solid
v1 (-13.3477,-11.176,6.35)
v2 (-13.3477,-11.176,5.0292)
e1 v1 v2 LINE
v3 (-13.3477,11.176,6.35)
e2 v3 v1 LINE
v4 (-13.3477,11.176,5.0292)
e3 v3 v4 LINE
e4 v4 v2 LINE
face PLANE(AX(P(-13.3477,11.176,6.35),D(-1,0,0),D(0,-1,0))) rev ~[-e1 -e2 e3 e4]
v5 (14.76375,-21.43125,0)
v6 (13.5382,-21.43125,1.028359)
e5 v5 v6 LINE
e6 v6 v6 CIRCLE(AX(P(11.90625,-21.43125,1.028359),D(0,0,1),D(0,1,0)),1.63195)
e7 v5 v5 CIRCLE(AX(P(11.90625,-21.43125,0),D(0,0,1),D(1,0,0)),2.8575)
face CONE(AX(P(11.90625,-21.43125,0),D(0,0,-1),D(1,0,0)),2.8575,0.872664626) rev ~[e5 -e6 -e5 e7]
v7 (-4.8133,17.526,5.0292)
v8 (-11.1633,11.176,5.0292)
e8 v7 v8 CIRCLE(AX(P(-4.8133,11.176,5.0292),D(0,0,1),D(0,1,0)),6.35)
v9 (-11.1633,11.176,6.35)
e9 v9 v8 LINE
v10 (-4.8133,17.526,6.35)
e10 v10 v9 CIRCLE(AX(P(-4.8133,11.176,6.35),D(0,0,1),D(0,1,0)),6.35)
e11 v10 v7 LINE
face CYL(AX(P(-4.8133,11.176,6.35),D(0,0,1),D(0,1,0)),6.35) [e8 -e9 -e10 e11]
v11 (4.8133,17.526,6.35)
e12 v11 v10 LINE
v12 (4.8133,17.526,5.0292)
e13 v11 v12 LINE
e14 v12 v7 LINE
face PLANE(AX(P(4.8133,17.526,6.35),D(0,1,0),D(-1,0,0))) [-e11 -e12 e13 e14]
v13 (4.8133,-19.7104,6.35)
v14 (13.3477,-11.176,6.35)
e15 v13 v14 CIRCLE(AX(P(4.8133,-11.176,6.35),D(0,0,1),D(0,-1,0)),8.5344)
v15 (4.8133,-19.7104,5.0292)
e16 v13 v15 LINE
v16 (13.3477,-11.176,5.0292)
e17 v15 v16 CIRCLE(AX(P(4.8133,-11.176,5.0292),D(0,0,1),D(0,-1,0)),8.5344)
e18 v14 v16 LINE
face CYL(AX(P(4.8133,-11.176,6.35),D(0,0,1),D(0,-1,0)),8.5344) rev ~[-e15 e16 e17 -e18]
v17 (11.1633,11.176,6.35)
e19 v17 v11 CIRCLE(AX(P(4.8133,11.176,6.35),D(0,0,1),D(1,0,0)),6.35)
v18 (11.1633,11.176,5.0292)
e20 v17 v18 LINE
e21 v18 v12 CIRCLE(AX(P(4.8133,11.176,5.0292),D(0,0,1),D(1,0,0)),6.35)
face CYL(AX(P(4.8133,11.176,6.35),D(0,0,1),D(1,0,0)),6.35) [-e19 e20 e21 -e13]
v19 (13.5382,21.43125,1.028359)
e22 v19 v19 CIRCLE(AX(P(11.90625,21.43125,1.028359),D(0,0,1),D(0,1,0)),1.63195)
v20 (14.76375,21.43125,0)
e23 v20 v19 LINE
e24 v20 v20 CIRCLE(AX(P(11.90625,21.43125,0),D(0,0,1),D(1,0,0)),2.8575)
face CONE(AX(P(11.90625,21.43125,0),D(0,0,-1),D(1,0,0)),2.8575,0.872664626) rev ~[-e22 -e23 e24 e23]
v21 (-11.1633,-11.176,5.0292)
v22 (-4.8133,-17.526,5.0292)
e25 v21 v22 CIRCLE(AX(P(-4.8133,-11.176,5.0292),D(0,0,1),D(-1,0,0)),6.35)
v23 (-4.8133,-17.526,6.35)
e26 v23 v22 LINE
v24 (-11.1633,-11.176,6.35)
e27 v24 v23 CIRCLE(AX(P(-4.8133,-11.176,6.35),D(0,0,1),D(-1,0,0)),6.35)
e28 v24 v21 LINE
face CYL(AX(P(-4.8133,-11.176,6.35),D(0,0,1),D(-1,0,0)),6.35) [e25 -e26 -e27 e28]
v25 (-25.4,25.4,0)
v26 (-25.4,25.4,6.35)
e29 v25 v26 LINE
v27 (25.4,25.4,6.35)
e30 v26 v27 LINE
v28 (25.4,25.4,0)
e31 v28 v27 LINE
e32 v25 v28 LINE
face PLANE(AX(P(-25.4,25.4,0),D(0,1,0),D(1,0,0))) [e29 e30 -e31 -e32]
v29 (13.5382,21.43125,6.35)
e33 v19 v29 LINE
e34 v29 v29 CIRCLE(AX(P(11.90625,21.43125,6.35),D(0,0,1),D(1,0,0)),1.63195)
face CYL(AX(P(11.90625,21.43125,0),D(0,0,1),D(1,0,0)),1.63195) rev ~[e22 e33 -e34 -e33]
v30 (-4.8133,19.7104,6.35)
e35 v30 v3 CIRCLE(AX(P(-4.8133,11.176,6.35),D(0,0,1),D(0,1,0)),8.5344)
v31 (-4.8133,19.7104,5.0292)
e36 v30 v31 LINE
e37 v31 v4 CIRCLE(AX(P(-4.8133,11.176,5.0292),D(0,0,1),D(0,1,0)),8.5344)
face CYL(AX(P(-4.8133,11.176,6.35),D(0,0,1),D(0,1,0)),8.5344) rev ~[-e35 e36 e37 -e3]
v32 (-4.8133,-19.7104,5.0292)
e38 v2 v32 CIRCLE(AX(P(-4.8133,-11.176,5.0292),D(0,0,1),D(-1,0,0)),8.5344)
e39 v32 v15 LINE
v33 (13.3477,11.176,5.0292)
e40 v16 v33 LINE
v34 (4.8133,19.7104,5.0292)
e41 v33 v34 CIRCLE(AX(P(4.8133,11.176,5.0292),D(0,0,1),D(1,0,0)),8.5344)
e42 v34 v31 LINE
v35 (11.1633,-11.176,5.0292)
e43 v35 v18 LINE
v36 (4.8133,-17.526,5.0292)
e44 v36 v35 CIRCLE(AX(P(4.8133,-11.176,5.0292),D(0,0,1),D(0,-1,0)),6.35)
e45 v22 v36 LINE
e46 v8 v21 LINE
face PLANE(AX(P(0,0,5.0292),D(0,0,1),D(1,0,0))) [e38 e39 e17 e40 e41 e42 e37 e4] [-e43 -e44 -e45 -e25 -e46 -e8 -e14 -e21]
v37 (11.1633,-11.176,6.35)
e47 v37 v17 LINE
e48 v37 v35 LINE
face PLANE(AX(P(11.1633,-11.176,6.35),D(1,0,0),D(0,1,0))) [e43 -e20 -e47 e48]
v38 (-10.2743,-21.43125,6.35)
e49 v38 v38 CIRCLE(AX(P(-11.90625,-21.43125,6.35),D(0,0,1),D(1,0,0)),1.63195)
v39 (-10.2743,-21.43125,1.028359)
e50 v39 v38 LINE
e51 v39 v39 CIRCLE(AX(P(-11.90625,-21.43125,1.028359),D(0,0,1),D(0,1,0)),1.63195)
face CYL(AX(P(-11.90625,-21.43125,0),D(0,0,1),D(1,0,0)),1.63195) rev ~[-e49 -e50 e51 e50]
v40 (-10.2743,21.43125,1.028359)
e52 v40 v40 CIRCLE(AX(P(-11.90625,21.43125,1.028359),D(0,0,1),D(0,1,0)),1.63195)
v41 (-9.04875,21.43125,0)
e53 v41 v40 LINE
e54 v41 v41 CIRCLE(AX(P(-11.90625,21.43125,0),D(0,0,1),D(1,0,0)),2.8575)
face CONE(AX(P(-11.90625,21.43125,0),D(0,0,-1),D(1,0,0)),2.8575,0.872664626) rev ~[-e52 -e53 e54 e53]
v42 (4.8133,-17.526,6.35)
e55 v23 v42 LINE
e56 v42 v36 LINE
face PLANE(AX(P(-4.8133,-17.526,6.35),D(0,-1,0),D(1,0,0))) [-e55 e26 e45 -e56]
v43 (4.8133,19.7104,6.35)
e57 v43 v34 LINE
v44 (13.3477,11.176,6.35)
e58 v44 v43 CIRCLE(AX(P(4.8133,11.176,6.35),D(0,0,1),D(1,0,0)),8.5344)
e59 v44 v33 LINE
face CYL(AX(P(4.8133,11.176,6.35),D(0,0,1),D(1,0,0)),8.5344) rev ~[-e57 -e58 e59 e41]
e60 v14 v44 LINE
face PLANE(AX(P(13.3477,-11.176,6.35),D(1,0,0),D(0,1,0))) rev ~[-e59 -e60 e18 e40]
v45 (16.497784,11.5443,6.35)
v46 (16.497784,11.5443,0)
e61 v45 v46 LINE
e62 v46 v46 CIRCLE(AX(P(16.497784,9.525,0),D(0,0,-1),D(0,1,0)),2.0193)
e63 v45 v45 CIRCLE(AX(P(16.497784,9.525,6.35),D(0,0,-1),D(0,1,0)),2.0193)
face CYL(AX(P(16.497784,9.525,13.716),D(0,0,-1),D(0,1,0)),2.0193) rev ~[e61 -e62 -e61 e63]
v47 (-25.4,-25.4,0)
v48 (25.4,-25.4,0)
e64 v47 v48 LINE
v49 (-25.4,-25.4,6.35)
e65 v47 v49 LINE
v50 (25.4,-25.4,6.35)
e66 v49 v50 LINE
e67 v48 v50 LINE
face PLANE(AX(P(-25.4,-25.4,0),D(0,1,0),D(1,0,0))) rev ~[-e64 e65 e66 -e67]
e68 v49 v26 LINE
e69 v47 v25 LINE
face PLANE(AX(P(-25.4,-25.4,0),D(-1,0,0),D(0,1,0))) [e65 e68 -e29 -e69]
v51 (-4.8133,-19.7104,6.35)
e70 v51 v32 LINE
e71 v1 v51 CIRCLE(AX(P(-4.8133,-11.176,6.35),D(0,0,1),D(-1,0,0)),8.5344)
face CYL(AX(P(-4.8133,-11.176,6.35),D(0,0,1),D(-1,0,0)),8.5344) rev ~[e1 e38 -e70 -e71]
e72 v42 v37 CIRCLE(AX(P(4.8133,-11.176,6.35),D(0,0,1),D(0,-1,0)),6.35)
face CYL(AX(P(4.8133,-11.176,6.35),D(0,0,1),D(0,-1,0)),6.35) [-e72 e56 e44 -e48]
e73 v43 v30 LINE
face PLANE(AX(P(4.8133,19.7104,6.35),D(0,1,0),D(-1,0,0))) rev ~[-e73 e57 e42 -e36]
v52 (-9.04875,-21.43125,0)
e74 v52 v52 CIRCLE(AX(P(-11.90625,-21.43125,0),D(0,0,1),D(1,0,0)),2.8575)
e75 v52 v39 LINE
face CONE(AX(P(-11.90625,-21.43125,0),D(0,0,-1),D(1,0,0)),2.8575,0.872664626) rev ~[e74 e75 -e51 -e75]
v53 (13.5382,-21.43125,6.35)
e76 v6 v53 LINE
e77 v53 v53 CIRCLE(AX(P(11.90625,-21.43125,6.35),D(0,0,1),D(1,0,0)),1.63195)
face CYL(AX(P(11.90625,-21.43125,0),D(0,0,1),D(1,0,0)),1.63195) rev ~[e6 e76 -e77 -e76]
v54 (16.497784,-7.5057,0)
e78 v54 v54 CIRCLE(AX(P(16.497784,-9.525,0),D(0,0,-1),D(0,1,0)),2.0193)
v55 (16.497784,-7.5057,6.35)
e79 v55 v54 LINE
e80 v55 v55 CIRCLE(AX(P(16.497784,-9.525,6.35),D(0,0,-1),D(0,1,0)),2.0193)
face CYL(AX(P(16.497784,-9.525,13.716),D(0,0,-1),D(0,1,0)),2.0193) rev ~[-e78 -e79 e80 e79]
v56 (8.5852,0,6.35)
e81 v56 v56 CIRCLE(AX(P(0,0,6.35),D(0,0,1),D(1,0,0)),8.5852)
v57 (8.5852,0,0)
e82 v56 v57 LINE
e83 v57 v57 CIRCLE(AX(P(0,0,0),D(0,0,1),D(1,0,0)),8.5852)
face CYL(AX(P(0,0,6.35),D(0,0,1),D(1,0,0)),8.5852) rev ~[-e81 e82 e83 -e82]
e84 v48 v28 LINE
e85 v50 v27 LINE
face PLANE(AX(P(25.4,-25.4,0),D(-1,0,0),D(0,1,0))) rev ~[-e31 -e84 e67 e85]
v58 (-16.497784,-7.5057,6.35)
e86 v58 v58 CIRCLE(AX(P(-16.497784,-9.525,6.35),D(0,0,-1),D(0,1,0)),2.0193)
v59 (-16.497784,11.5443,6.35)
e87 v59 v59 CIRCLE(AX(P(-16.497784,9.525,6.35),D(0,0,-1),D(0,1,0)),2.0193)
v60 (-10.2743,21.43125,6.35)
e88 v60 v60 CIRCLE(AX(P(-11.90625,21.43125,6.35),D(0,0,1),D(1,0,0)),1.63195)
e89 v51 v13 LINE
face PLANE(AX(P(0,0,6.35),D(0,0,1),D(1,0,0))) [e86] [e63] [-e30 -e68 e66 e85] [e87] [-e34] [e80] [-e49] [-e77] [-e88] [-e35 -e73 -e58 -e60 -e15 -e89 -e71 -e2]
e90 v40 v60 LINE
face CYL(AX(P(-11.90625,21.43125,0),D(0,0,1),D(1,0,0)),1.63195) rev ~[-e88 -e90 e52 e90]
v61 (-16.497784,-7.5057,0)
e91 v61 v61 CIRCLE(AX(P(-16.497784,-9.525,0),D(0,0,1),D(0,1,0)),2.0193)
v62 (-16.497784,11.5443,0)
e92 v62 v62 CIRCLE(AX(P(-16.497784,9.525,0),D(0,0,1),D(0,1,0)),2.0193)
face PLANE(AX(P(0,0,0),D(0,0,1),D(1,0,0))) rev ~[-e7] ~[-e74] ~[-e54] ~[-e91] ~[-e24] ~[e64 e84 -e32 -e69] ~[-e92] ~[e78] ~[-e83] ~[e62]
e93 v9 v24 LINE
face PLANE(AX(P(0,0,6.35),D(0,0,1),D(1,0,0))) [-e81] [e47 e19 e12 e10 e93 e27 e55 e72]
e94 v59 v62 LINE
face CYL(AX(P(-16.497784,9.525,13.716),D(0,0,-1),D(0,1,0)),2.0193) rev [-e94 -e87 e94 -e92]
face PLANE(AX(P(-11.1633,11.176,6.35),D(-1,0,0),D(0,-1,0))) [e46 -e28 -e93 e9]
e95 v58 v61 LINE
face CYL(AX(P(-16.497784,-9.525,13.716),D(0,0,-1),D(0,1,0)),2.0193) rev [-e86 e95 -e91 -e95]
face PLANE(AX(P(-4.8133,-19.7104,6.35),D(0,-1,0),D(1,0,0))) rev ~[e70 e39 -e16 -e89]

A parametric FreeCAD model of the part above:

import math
import FreeCAD as App
import Part
import Sketcher

V = App.Vector
Q = App.Units.Quantity


def add_polygon(sketch, points):
    """Adds a closed chain of lines whose ends are joined by coincident constraints."""
    first, n = sketch.GeometryCount, len(points)
    for a, b in zip(points, points[1:] + points[:1]):
        sketch.addGeometry(Part.LineSegment(App.Vector(*a, 0), App.Vector(*b, 0)), False)
    for i in range(n):
        sketch.addConstraint(Sketcher.Constraint("Coincident", first + i, 2, first + (i + 1) % n, 1))

doc = App.newDocument("Part")
body = doc.addObject("PartDesign::Body", "Body")

# Sketch on XY plane
sketch1 = body.newObject("Sketcher::SketchObject", "Sketch")
sketch1.AttachmentSupport = (doc.getObject("XY_Plane"), [""])
sketch1.MapMode = "FlatFace"
add_polygon(sketch1, [(-25, 25), (-25, -25), (25, -25), (25, 25)])  # lines 0-3
sketch1.addConstraint(Sketcher.Constraint("Vertical", 0))
sketch1.addConstraint(Sketcher.Constraint("Horizontal", 1))
sketch1.addConstraint(Sketcher.Constraint("Vertical", 2))
sketch1.addConstraint(Sketcher.Constraint("Horizontal", 3))
sketch1.addConstraint(Sketcher.Constraint("Symmetric", 0, 2, 2, 2, -1, 1))
sketch1.addConstraint(Sketcher.Constraint("Equal", 3, 0))
sketch1.addConstraint(Sketcher.Constraint("DistanceX", 1, 1, 1, 2, Q("2 in")))
pad1 = body.newObject("PartDesign::Pad", "Pad")
pad1.Profile = sketch1
pad1.Length = Q("0.25 in")

# Sketch on XY plane
sketch2 = body.newObject("Sketcher::SketchObject", "Sketch001")
sketch2.AttachmentSupport = (doc.getObject("XY_Plane"), [""])
sketch2.MapMode = "FlatFace"
sketch2.AttachmentOffset = App.Placement(V(0, 0, 0.25 * 25.4), App.Rotation())
sketch2.addGeometry(Part.Circle(V(0, 0, 0), V(0, 0, 1), 9), False)
sketch2.addConstraint(Sketcher.Constraint("Coincident", 0, 3, -1, 1))
sketch2.addConstraint(Sketcher.Constraint("Diameter", 0, Q("0.676 in")))
pocket1 = body.newObject("PartDesign::Pocket", "Pocket")
pocket1.Profile = sketch2
pocket1.Type = "ThroughAll"

# Sketch on XY plane
sketch3 = body.newObject("Sketcher::SketchObject", "Sketch002")
sketch3.AttachmentSupport = (doc.getObject("XY_Plane"), [""])
sketch3.MapMode = "FlatFace"
sketch3.AttachmentOffset = App.Placement(V(0, 0, 0.25 * 25.4), App.Rotation())
sketch3.addGeometry(Part.LineSegment(V(13, -11, 0), V(13, 11, 0)), False)
sketch3.addGeometry(Part.ArcOfCircle(Part.Circle(V(5, 11, 0), V(0, 0, 1), 9), math.radians(0), math.radians(90)), False)
sketch3.addGeometry(Part.LineSegment(V(5, 20, 0), V(-5, 20, 0)), False)
sketch3.addGeometry(Part.ArcOfCircle(Part.Circle(V(-5, 11, 0), V(0, 0, 1), 9), math.radians(90), math.radians(180)), False)
sketch3.addGeometry(Part.LineSegment(V(-13, 11, 0), V(-13, -11, 0)), False)
sketch3.addGeometry(Part.ArcOfCircle(Part.Circle(V(-5, -11, 0), V(0, 0, 1), 9), math.radians(-180), math.radians(-90)), False)
sketch3.addGeometry(Part.LineSegment(V(-5, -20, 0), V(5, -20, 0)), False)
sketch3.addGeometry(Part.ArcOfCircle(Part.Circle(V(5, -11, 0), V(0, 0, 1), 9), math.radians(-90), math.radians(0)), False)
sketch3.addGeometry(Part.LineSegment(V(5, -18, 0), V(-5, -18, 0)), False)
sketch3.addGeometry(Part.ArcOfCircle(Part.Circle(V(-5, -11, 0), V(0, 0, 1), 6), math.radians(180), math.radians(270)), False)
sketch3.addGeometry(Part.LineSegment(V(-11, -11, 0), V(-11, 11, 0)), False)
sketch3.addGeometry(Part.ArcOfCircle(Part.Circle(V(-5, 11, 0), V(0, 0, 1), 6), math.radians(90), math.radians(180)), False)
sketch3.addGeometry(Part.LineSegment(V(-5, 18, 0), V(5, 18, 0)), False)
sketch3.addGeometry(Part.ArcOfCircle(Part.Circle(V(5, 11, 0), V(0, 0, 1), 6), math.radians(0), math.radians(90)), False)
sketch3.addGeometry(Part.LineSegment(V(11, 11, 0), V(11, -11, 0)), False)
sketch3.addGeometry(Part.ArcOfCircle(Part.Circle(V(5, -11, 0), V(0, 0, 1), 6), math.radians(-90), math.radians(0)), False)
sketch3.addConstraint(Sketcher.Constraint("Tangent", 0, 2, 1, 1))
sketch3.addConstraint(Sketcher.Constraint("Tangent", 1, 2, 2, 1))
sketch3.addConstraint(Sketcher.Constraint("Tangent", 2, 2, 3, 1))
sketch3.addConstraint(Sketcher.Constraint("Tangent", 3, 2, 4, 1))
sketch3.addConstraint(Sketcher.Constraint("Tangent", 4, 2, 5, 1))
sketch3.addConstraint(Sketcher.Constraint("Tangent", 5, 2, 6, 1))
sketch3.addConstraint(Sketcher.Constraint("Tangent", 6, 2, 7, 1))
sketch3.addConstraint(Sketcher.Constraint("Tangent", 7, 2, 0, 1))
sketch3.addConstraint(Sketcher.Constraint("Tangent", 8, 2, 9, 2))
sketch3.addConstraint(Sketcher.Constraint("Tangent", 9, 1, 10, 1))
sketch3.addConstraint(Sketcher.Constraint("Tangent", 10, 2, 11, 2))
sketch3.addConstraint(Sketcher.Constraint("Tangent", 11, 1, 12, 1))
sketch3.addConstraint(Sketcher.Constraint("Tangent", 12, 2, 13, 2))
sketch3.addConstraint(Sketcher.Constraint("Tangent", 13, 1, 14, 1))
sketch3.addConstraint(Sketcher.Constraint("Tangent", 14, 2, 15, 2))
sketch3.addConstraint(Sketcher.Constraint("Tangent", 15, 1, 8, 1))
sketch3.addConstraint(Sketcher.Constraint("Vertical", 0))
sketch3.addConstraint(Sketcher.Constraint("Horizontal", 2))
sketch3.addConstraint(Sketcher.Constraint("Vertical", 4))
sketch3.addConstraint(Sketcher.Constraint("Horizontal", 6))
sketch3.addConstraint(Sketcher.Constraint("Horizontal", 8))
sketch3.addConstraint(Sketcher.Constraint("Vertical", 10))
sketch3.addConstraint(Sketcher.Constraint("Horizontal", 12))
sketch3.addConstraint(Sketcher.Constraint("Vertical", 14))
sketch3.addConstraint(Sketcher.Constraint("Coincident", 9, 3, 5, 3))
sketch3.addConstraint(Sketcher.Constraint("Coincident", 11, 3, 3, 3))
sketch3.addConstraint(Sketcher.Constraint("Coincident", 13, 3, 1, 3))
sketch3.addConstraint(Sketcher.Constraint("Equal", 1, 3))
sketch3.addConstraint(Sketcher.Constraint("Equal", 3, 5))
sketch3.addConstraint(Sketcher.Constraint("Equal", 5, 7))
sketch3.addConstraint(Sketcher.Constraint("Equal", 13, 15))
sketch3.addConstraint(Sketcher.Constraint("Symmetric", 1, 3, 5, 3, -1, 1))
sketch3.addConstraint(Sketcher.Constraint("Radius", 9, Q("0.25 in")))
sketch3.addConstraint(Sketcher.Constraint("Radius", 1, Q("0.336 in")))
sketch3.addConstraint(Sketcher.Constraint("DistanceY", 0, 1, 0, 2, Q("0.88 in")))
sketch3.addConstraint(Sketcher.Constraint("DistanceX", 2, 2, 2, 1, Q("0.379 in")))
pocket2 = body.newObject("PartDesign::Pocket", "Pocket001")
pocket2.Profile = sketch3
pocket2.Length = Q("0.052 in")

# Sketch on XY plane
sketch4 = body.newObject("Sketcher::SketchObject", "Sketch003")
sketch4.AttachmentSupport = (doc.getObject("XY_Plane"), [""])
sketch4.MapMode = "FlatFace"
sketch4.addGeometry(Part.Circle(V(11.9, 21.4, 0), V(0, 0, 1), 1.6), False)
sketch4.addGeometry(Part.Circle(V(-11.9, 21.4, 0), V(0, 0, 1), 1.6), False)
sketch4.addGeometry(Part.Circle(V(11.9, -21.4, 0), V(0, 0, 1), 1.6), False)
sketch4.addGeometry(Part.Circle(V(-11.9, -21.4, 0), V(0, 0, 1), 1.6), False)
sketch4.addConstraint(Sketcher.Constraint("Equal", 0, 1))
sketch4.addConstraint(Sketcher.Constraint("Equal", 1, 2))
sketch4.addConstraint(Sketcher.Constraint("Equal", 2, 3))
sketch4.addConstraint(Sketcher.Constraint("Symmetric", 1, 3, 2, 3, -1, 1))
sketch4.addConstraint(Sketcher.Constraint("Symmetric", 0, 3, 3, 3, -1, 1))
sketch4.addConstraint(Sketcher.Constraint("Symmetric", 0, 3, 1, 3, -2))
sketch4.addConstraint(Sketcher.Constraint("Diameter", 0, Q("0.1285 in")))
sketch4.addConstraint(Sketcher.Constraint("DistanceX", -1, 1, 0, 3, Q("0.46875 in")))
sketch4.addConstraint(Sketcher.Constraint("DistanceY", -1, 1, 0, 3, Q("0.84375 in")))
doc.recompute()
hole = body.newObject("PartDesign::Hole", "Hole")
hole.Profile = sketch4
hole.ThreadType = "None"
hole.Diameter = Q("0.1285 in")
hole.DepthType = "ThroughAll"
hole.HoleCutType = "Countersink"
hole.HoleCutDiameter = Q("0.225 in")
hole.HoleCutCountersinkAngle = 100
hole.Reversed = True

# Sketch on YZ plane
sketch5 = body.newObject("Sketcher::SketchObject", "Sketch004")
sketch5.AttachmentSupport = (doc.getObject("YZ_Plane"), [""])
sketch5.MapMode = "FlatFace"
sketch5.AttachmentOffset = App.Placement(V(0, 0, -16.497784), App.Rotation())
add_polygon(sketch5, [(9.5, 14.9), (9.5, 0), (11.5, 0), (11.5, 13.7)])  # lines 0-3
sketch5.addGeometry(Part.LineSegment(V(9.5, 0, 0), V(9.5, 14.9, 0)), True)  # axis
sketch5.addConstraint(Sketcher.Constraint("Vertical", 0))
sketch5.addConstraint(Sketcher.Constraint("Horizontal", 1))
sketch5.addConstraint(Sketcher.Constraint("Vertical", 2))
sketch5.addConstraint(Sketcher.Constraint("Vertical", 4))
sketch5.addConstraint(Sketcher.Constraint("Coincident", 4, 1, 0, 2))
sketch5.addConstraint(Sketcher.Constraint("PointOnObject", 0, 2, -1))
sketch5.addConstraint(Sketcher.Constraint("Equal", 0, 4))
sketch5.addConstraint(Sketcher.Constraint("Angle", 3, Q("149 deg")))
sketch5.addConstraint(Sketcher.Constraint("DistanceY", 2, 1, 2, 2, Q("0.54 in")))
sketch5.addConstraint(Sketcher.Constraint("DistanceX", 1, 1, 1, 2, Q("0.0795 in")))
sketch5.addConstraint(Sketcher.Constraint("DistanceX", -1, 1, 0, 2, Q("0.375 in")))
groove = body.newObject("PartDesign::Groove", "Groove")
groove.Profile = sketch5
groove.ReferenceAxis = (sketch5, ["Axis0"])
groove.Angle = 360
doc.recompute()

linearpattern = body.newObject("PartDesign::LinearPattern", "LinearPattern")
linearpattern.Originals = [groove]
linearpattern.Direction = (doc.getObject("Y_Axis"), [""])
linearpattern.Mode = "offset"
linearpattern.Offset = Q("0.75 in")
linearpattern.Occurrences = 2
linearpattern.Reversed = True
body.Tip = linearpattern
doc.recompute()

mirrored = body.newObject("PartDesign::Mirrored", "Mirrored")
mirrored.Originals = [groove]
mirrored.MirrorPlane = (doc.getObject("YZ_Plane"), [""])
body.Tip = mirrored

# Sketch on YZ plane
sketch6 = body.newObject("Sketcher::SketchObject", "Sketch005")
sketch6.AttachmentSupport = (doc.getObject("YZ_Plane"), [""])
sketch6.MapMode = "FlatFace"
sketch6.AttachmentOffset = App.Placement(V(0, 0, 16.497784), App.Rotation())
add_polygon(sketch6, [(-9.5, 0), (-9.5, 14.9), (-7.5, 13.7), (-7.5, 0)])  # lines 0-3
sketch6.addGeometry(Part.LineSegment(V(-9.5, 14.9, 0), V(-9.5, 0, 0)), True)  # axis
sketch6.addConstraint(Sketcher.Constraint("Vertical", 0))
sketch6.addConstraint(Sketcher.Constraint("Vertical", 2))
sketch6.addConstraint(Sketcher.Constraint("Horizontal", 3))
sketch6.addConstraint(Sketcher.Constraint("Vertical", 4))
sketch6.addConstraint(Sketcher.Constraint("Coincident", 4, 1, 0, 2))
sketch6.addConstraint(Sketcher.Constraint("PointOnObject", 2, 2, -1))
sketch6.addConstraint(Sketcher.Constraint("PointOnObject", 4, 2, -1))
sketch6.addConstraint(Sketcher.Constraint("Angle", 1, Q("-31 deg")))
sketch6.addConstraint(Sketcher.Constraint("DistanceY", 2, 2, 2, 1, Q("0.54 in")))
sketch6.addConstraint(Sketcher.Constraint("DistanceX", 3, 2, 3, 1, Q("0.0795 in")))
sketch6.addConstraint(Sketcher.Constraint("DistanceX", 0, 2, -1, 1, Q("0.375 in")))
groove2 = body.newObject("PartDesign::Groove", "Groove001")
groove2.Profile = sketch6
groove2.ReferenceAxis = (sketch6, ["Axis0"])
groove2.Angle = 360

doc.recompute()
